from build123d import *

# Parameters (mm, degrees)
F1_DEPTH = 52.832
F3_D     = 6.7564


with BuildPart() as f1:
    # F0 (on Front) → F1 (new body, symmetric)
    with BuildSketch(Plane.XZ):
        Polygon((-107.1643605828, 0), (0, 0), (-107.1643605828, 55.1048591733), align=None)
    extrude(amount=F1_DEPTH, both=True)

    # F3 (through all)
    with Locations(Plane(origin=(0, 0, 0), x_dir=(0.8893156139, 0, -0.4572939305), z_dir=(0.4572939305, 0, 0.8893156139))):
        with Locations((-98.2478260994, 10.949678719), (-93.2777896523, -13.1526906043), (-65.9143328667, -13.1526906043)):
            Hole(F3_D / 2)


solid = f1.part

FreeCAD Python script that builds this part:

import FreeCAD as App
import Part
import Sketcher

V = App.Vector
Q = App.Units.Quantity


def add_polygon(sketch, points):
    """Adds a closed chain of lines whose ends are joined by coincident constraints."""
    first, n = sketch.GeometryCount, len(points)
    for a, b in zip(points, points[1:] + points[:1]):
        sketch.addGeometry(Part.LineSegment(App.Vector(*a, 0), App.Vector(*b, 0)), False)
    for i in range(n):
        sketch.addConstraint(Sketcher.Constraint("Coincident", first + i, 2, first + (i + 1) % n, 1))

doc = App.newDocument("Part")
params = doc.addObject("Spreadsheet::Sheet", "Params")
for row, (alias, value) in enumerate([
    ("pad1_length", "4.16 in"),
    ("sketch2_diameter", "0.266 in"),
    ("hole_diameter", "0.266 in"),
], start=1):
    params.set(f"A{row}", alias)
    params.set(f"B{row}", "=" + value)
    params.setAlias(f"B{row}", alias)

body = doc.addObject("PartDesign::Body", "Body")

sketch1 = doc.addObject("Sketcher::SketchObject", "Sketch")
body.addObject(sketch1)
sketch1.AttachmentSupport = (doc.XZ_Plane, [""])
sketch1.MapMode = "FlatFace"
add_polygon(sketch1, [(-107, 0), (0, 0), (-107, 55)])
sketch1.addConstraint([
    Sketcher.Constraint("Horizontal", 0),
    Sketcher.Constraint("Vertical", 2),
    Sketcher.Constraint("Coincident", 0, 2, -1, 1),
    Sketcher.Constraint("DistanceX", 0, 1, 0, 2, Q("107.164361 mm")),
    Sketcher.Constraint("DistanceY", 2, 2, 2, 1, Q("55.104859 mm")),
])
pad1 = doc.addObject("PartDesign::Pad", "Pad")
body.addObject(pad1)
pad1.Profile = sketch1
pad1.setExpression("Length", "Params.pad1_length")
pad1.Midplane = True

sketch2 = doc.addObject("Sketcher::SketchObject", "Sketch001")
body.addObject(sketch2)
sketch2.Placement = App.Placement(V(0, 0, 0), App.Rotation(V(0.889315614, 0, -0.457293931), V(0, 1.000000001, 0), V(0.457293931, 0, 0.889315614), "ZXY"))
sketch2.addGeometry([
    Part.Circle(V(-98.2, 10.9, 0), V(0, 0, 1), 3.4),
    Part.Circle(V(-93.3, -13.2, 0), V(0, 0, 1), 3.4),
    Part.Circle(V(-65.9, -13.2, 0), V(0, 0, 1), 3.4),
], False)
sketch2.addConstraint([
    Sketcher.Constraint("Equal", 0, 1),
    Sketcher.Constraint("Equal", 1, 2),
    Sketcher.Constraint("Horizontal", 1, 3, 2, 3),
    Sketcher.Constraint("Diameter", 0, Q("0.266 in")),
    Sketcher.Constraint("DistanceY", -1, 1, 0, 3, Q("10.949679 mm")),
    Sketcher.Constraint("DistanceX", 1, 3, -1, 1, Q("93.27779 mm")),
    Sketcher.Constraint("DistanceY", 1, 3, -1, 1, Q("13.152691 mm")),
    Sketcher.Constraint("DistanceX", 0, 3, -1, 1, Q("98.247826 mm")),
    Sketcher.Constraint("DistanceX", 2, 3, -1, 1, Q("65.914333 mm")),
])
sketch2.setExpression("Constraints[3]", "Params.sketch2_diameter")
doc.recompute()
hole = doc.addObject("PartDesign::Hole", "Hole")
body.addObject(hole)
hole.Profile = sketch2
hole.ThreadType = "None"
hole.setExpression("Diameter", "Params.hole_diameter")
hole.DepthType = "ThroughAll"

doc.recompute()
